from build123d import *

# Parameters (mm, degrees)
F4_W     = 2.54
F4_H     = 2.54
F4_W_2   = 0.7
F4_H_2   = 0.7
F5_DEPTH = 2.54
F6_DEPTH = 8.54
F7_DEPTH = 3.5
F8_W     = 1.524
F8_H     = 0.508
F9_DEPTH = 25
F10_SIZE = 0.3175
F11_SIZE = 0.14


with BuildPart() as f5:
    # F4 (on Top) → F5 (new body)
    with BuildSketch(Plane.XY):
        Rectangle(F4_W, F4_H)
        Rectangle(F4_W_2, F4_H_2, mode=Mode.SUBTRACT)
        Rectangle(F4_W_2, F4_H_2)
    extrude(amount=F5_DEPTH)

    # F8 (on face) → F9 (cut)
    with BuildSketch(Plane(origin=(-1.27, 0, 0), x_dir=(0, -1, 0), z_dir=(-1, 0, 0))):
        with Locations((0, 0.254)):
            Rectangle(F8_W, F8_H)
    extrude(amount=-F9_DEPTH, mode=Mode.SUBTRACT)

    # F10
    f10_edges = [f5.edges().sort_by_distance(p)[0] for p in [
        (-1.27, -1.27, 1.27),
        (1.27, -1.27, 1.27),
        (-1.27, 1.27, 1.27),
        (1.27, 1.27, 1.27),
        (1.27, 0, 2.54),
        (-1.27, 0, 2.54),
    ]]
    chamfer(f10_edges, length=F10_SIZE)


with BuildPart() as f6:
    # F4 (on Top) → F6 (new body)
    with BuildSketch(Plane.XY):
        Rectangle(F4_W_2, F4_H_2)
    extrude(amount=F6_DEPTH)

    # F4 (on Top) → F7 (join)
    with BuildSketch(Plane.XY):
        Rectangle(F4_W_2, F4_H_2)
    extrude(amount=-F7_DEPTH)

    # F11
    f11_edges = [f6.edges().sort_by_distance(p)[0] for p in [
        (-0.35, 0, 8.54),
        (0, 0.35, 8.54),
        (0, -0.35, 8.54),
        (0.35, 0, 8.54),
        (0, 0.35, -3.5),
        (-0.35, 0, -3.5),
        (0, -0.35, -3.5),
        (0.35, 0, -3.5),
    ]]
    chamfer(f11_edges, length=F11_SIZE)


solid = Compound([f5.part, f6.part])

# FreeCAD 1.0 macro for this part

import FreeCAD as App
import Part
import Sketcher

V = App.Vector


def edges_at(feature, points):
    """Names of the edges that pass closest to the given points."""
    edges = feature.Shape.Edges
    near = lambda p: min(range(len(edges)), key=lambda i: edges[i].distToShape(Part.Vertex(*p))[0])
    return sorted({f"Edge{near(p) + 1}" for p in points})


def add_polygon(sketch, points):
    """Adds a closed chain of lines whose ends are joined by coincident constraints."""
    first, n = sketch.GeometryCount, len(points)
    for a, b in zip(points, points[1:] + points[:1]):
        sketch.addGeometry(Part.LineSegment(App.Vector(*a, 0), App.Vector(*b, 0)), False)
    for i in range(n):
        sketch.addConstraint(Sketcher.Constraint("Coincident", first + i, 2, first + (i + 1) % n, 1))

doc = App.newDocument("Part")
body = doc.addObject("PartDesign::Body", "Body")

# Sketch on XY plane
sketch1 = body.newObject("Sketcher::SketchObject", "Sketch")
sketch1.AttachmentSupport = (doc.getObject("XY_Plane"), [""])
sketch1.MapMode = "FlatFace"
add_polygon(sketch1, [(-1.3, 1.3), (-1.3, -1.3), (1.3, -1.3), (1.3, 1.3)])  # lines 0-3
sketch1.addConstraint([
    Sketcher.Constraint("Vertical", 0),
    Sketcher.Constraint("Horizontal", 1),
    Sketcher.Constraint("Vertical", 2),
    Sketcher.Constraint("Horizontal", 3),
    Sketcher.Constraint("Symmetric", 0, 2, 2, 2, -1, 1),
    Sketcher.Constraint("Equal", 3, 0),
    Sketcher.Constraint("DistanceX", 1, 1, 1, 2, 2.54),
])
pad1 = body.newObject("PartDesign::Pad", "Pad")
pad1.Profile = sketch1
pad1.Length = 2.54

# Sketch on YZ plane
sketch2 = body.newObject("Sketcher::SketchObject", "Sketch001")
sketch2.AttachmentSupport = (doc.getObject("YZ_Plane"), [""])
sketch2.MapMode = "FlatFace"
sketch2.AttachmentOffset = App.Placement(V(0, 0, -1.27), App.Rotation())
add_polygon(sketch2, [(0.8, 0.5), (0.8, 0), (-0.8, 0), (-0.8, 0.5)])  # lines 0-3
sketch2.addConstraint([
    Sketcher.Constraint("Vertical", 0),
    Sketcher.Constraint("Horizontal", 1),
    Sketcher.Constraint("Vertical", 2),
    Sketcher.Constraint("Horizontal", 3),
    Sketcher.Constraint("Symmetric", 0, 2, 1, 2, -1, 1),
    Sketcher.Constraint("DistanceX", 1, 2, 1, 1, 1.524),
    Sketcher.Constraint("DistanceY", 0, 2, 0, 1, 0.508),
])
pocket1 = body.newObject("PartDesign::Pocket", "Pocket")
pocket1.Profile = sketch2
pocket1.Length = 25
pocket1.Reversed = True
doc.recompute()

chamfer = body.newObject("PartDesign::Chamfer", "Chamfer")
chamfer.Base = (pocket1, edges_at(pocket1, [
    (-1.27, -1.27, 1.27),
    (1.27, -1.27, 1.27),
    (-1.27, 1.27, 1.27),
    (1.27, 1.27, 1.27),
    (1.27, 0, 2.54),
    (-1.27, 0, 2.54),
]))
chamfer.Size = 0.3175
body2 = doc.addObject("PartDesign::Body", "Body001")

# Sketch on XY plane
sketch3 = body2.newObject("Sketcher::SketchObject", "Sketch002")
sketch3.AttachmentSupport = (doc.getObject("XY_Plane001"), [""])
sketch3.MapMode = "FlatFace"
add_polygon(sketch3, [(-0.3, 0.3), (-0.3, -0.3), (0.3, -0.3), (0.3, 0.3)])  # lines 0-3
sketch3.addConstraint([
    Sketcher.Constraint("Vertical", 0),
    Sketcher.Constraint("Horizontal", 1),
    Sketcher.Constraint("Vertical", 2),
    Sketcher.Constraint("Horizontal", 3),
    Sketcher.Constraint("Symmetric", 0, 2, 2, 2, -1, 1),
    Sketcher.Constraint("Equal", 3, 0),
    Sketcher.Constraint("DistanceX", 1, 1, 1, 2, 0.7),
])
pad2 = body2.newObject("PartDesign::Pad", "Pad001")
pad2.Profile = sketch3
pad2.Length = 8.54

# Sketch on XY plane
sketch4 = body2.newObject("Sketcher::SketchObject", "Sketch003")
sketch4.AttachmentSupport = (doc.getObject("XY_Plane001"), [""])
sketch4.MapMode = "FlatFace"
add_polygon(sketch4, [(-0.3, 0.3), (-0.3, -0.3), (0.3, -0.3), (0.3, 0.3)])  # lines 0-3
sketch4.addConstraint([
    Sketcher.Constraint("Vertical", 0),
    Sketcher.Constraint("Horizontal", 1),
    Sketcher.Constraint("Vertical", 2),
    Sketcher.Constraint("Horizontal", 3),
    Sketcher.Constraint("Symmetric", 0, 2, 2, 2, -1, 1),
    Sketcher.Constraint("Equal", 3, 0),
    Sketcher.Constraint("DistanceX", 1, 1, 1, 2, 0.7),
])
pad3 = body2.newObject("PartDesign::Pad", "Pad002")
pad3.Profile = sketch4
pad3.Length = 3.5
pad3.Reversed = True
doc.recompute()

chamfer2 = body2.newObject("PartDesign::Chamfer", "Chamfer001")
chamfer2.Base = (pad3, edges_at(pad3, [
    (-0.35, 0, 8.54),
    (0, 0.35, 8.54),
    (0, -0.35, 8.54),
    (0.35, 0, 8.54),
    (0, 0.35, -3.5),
    (-0.35, 0, -3.5),
    (0, -0.35, -3.5),
    (0.35, 0, -3.5),
]))
chamfer2.Size = 0.14

doc.recompute()
